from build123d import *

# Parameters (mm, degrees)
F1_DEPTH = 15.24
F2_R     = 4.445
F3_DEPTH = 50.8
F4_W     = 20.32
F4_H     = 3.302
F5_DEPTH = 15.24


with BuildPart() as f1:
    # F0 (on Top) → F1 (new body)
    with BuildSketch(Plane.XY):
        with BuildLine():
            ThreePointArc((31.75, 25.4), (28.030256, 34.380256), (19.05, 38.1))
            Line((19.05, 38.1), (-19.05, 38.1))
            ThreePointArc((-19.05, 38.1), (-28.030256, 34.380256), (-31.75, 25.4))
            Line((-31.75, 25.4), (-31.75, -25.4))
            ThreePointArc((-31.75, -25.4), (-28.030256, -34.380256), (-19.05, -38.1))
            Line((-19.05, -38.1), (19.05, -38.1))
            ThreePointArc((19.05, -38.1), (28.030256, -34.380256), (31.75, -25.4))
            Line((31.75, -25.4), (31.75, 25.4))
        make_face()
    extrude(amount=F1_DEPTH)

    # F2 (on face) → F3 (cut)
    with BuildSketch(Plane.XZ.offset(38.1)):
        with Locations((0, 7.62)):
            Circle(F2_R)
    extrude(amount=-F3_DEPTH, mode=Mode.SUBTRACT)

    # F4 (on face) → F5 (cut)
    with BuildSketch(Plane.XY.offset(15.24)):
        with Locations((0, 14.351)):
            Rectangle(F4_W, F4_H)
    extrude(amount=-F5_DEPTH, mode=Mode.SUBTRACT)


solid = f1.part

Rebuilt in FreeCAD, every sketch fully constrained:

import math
import FreeCAD as App
import Part
import Sketcher

V = App.Vector
Q = App.Units.Quantity


def add_polygon(sketch, points):
    """Adds a closed chain of lines whose ends are joined by coincident constraints."""
    first, n = sketch.GeometryCount, len(points)
    for a, b in zip(points, points[1:] + points[:1]):
        sketch.addGeometry(Part.LineSegment(App.Vector(*a, 0), App.Vector(*b, 0)), False)
    for i in range(n):
        sketch.addConstraint(Sketcher.Constraint("Coincident", first + i, 2, first + (i + 1) % n, 1))

doc = App.newDocument("Part")
body = doc.addObject("PartDesign::Body", "Body")

sketch1 = body.newObject("Sketcher::SketchObject", "Sketch")
sketch1.AttachmentSupport = (doc.getObject("XY_Plane"), [""])
sketch1.MapMode = "FlatFace"
sketch1.addGeometry([
    Part.ArcOfCircle(Part.Circle(V(19.05, 25.4, 0), V(0, 0, 1), 12.7), math.radians(0.000002), math.radians(89.999998)),
    Part.LineSegment(V(19.05, 38.1, 0), V(-19.05, 38.1, 0)),
    Part.ArcOfCircle(Part.Circle(V(-19.05, 25.4, 0), V(0, 0, 1), 12.7), math.radians(90.000002), math.radians(179.999998)),
    Part.LineSegment(V(-31.75, 25.4, 0), V(-31.75, -25.4, 0)),
    Part.ArcOfCircle(Part.Circle(V(-19.05, -25.4, 0), V(0, 0, 1), 12.7), math.radians(-179.999998), math.radians(-90.000002)),
    Part.LineSegment(V(-19.05, -38.1, 0), V(19.05, -38.1, 0)),
    Part.ArcOfCircle(Part.Circle(V(19.05, -25.4, 0), V(0, 0, 1), 12.7), math.radians(-89.999998), math.radians(-0.000002)),
    Part.LineSegment(V(31.75, -25.4, 0), V(31.75, 25.4, 0)),
], False)
sketch1.addConstraint([
    Sketcher.Constraint("Tangent", 0, 2, 1, 1),
    Sketcher.Constraint("Tangent", 1, 2, 2, 1),
    Sketcher.Constraint("Tangent", 2, 2, 3, 1),
    Sketcher.Constraint("Tangent", 3, 2, 4, 1),
    Sketcher.Constraint("Tangent", 4, 2, 5, 1),
    Sketcher.Constraint("Tangent", 5, 2, 6, 1),
    Sketcher.Constraint("Tangent", 6, 2, 7, 1),
    Sketcher.Constraint("Tangent", 7, 2, 0, 1),
    Sketcher.Constraint("Horizontal", 1),
    Sketcher.Constraint("Vertical", 3),
    Sketcher.Constraint("Horizontal", 5),
    Sketcher.Constraint("Vertical", 7),
    Sketcher.Constraint("Equal", 0, 2),
    Sketcher.Constraint("Equal", 2, 4),
    Sketcher.Constraint("Equal", 4, 6),
    Sketcher.Constraint("Symmetric", 0, 3, 4, 3, -1, 1),
    Sketcher.Constraint("Radius", 0, Q("0.5 in")),
    Sketcher.Constraint("DistanceY", 3, 2, 3, 1, Q("2 in")),
    Sketcher.Constraint("DistanceX", 1, 2, 1, 1, Q("1.5 in")),
])
pad1 = body.newObject("PartDesign::Pad", "Pad")
pad1.Profile = sketch1
pad1.Length = Q("0.6 in")

sketch2 = body.newObject("Sketcher::SketchObject", "Sketch001")
sketch2.AttachmentSupport = (doc.getObject("XZ_Plane"), [""])
sketch2.MapMode = "FlatFace"
sketch2.AttachmentOffset = App.Placement(V(0, 0, 1.5 * 25.4), App.Rotation())
sketch2.addGeometry(Part.Circle(V(0, 7.62, 0), V(0, 0, 1), 4.445), False)
sketch2.addConstraint([
    Sketcher.Constraint("PointOnObject", 0, 3, -2),
    Sketcher.Constraint("Diameter", 0, Q("0.35 in")),
    Sketcher.Constraint("DistanceY", -1, 1, 0, 3, Q("0.3 in")),
])
pocket1 = body.newObject("PartDesign::Pocket", "Pocket")
pocket1.Profile = sketch2
pocket1.Length = Q("2 in")

sketch3 = body.newObject("Sketcher::SketchObject", "Sketch002")
sketch3.AttachmentSupport = (doc.getObject("XY_Plane"), [""])
sketch3.MapMode = "FlatFace"
sketch3.AttachmentOffset = App.Placement(V(0, 0, 0.6 * 25.4), App.Rotation())
add_polygon(sketch3, [(-10.16, 16.002), (-10.16, 12.7), (10.16, 12.7), (10.16, 16.002)])
sketch3.addConstraint([
    Sketcher.Constraint("Vertical", 0),
    Sketcher.Constraint("Horizontal", 1),
    Sketcher.Constraint("Vertical", 2),
    Sketcher.Constraint("Horizontal", 3),
    Sketcher.Constraint("DistanceX", 1, 1, 1, 2, Q("0.8 in")),
    Sketcher.Constraint("DistanceY", 0, 2, 0, 1, Q("0.13 in")),
    Sketcher.Constraint("DistanceX", 0, 2, -1, 1, Q("0.4 in")),
    Sketcher.Constraint("DistanceY", -1, 1, 0, 2, Q("0.5 in")),
])
pocket2 = body.newObject("PartDesign::Pocket", "Pocket001")
pocket2.Profile = sketch3
pocket2.Length = Q("0.6 in")

doc.recompute()
